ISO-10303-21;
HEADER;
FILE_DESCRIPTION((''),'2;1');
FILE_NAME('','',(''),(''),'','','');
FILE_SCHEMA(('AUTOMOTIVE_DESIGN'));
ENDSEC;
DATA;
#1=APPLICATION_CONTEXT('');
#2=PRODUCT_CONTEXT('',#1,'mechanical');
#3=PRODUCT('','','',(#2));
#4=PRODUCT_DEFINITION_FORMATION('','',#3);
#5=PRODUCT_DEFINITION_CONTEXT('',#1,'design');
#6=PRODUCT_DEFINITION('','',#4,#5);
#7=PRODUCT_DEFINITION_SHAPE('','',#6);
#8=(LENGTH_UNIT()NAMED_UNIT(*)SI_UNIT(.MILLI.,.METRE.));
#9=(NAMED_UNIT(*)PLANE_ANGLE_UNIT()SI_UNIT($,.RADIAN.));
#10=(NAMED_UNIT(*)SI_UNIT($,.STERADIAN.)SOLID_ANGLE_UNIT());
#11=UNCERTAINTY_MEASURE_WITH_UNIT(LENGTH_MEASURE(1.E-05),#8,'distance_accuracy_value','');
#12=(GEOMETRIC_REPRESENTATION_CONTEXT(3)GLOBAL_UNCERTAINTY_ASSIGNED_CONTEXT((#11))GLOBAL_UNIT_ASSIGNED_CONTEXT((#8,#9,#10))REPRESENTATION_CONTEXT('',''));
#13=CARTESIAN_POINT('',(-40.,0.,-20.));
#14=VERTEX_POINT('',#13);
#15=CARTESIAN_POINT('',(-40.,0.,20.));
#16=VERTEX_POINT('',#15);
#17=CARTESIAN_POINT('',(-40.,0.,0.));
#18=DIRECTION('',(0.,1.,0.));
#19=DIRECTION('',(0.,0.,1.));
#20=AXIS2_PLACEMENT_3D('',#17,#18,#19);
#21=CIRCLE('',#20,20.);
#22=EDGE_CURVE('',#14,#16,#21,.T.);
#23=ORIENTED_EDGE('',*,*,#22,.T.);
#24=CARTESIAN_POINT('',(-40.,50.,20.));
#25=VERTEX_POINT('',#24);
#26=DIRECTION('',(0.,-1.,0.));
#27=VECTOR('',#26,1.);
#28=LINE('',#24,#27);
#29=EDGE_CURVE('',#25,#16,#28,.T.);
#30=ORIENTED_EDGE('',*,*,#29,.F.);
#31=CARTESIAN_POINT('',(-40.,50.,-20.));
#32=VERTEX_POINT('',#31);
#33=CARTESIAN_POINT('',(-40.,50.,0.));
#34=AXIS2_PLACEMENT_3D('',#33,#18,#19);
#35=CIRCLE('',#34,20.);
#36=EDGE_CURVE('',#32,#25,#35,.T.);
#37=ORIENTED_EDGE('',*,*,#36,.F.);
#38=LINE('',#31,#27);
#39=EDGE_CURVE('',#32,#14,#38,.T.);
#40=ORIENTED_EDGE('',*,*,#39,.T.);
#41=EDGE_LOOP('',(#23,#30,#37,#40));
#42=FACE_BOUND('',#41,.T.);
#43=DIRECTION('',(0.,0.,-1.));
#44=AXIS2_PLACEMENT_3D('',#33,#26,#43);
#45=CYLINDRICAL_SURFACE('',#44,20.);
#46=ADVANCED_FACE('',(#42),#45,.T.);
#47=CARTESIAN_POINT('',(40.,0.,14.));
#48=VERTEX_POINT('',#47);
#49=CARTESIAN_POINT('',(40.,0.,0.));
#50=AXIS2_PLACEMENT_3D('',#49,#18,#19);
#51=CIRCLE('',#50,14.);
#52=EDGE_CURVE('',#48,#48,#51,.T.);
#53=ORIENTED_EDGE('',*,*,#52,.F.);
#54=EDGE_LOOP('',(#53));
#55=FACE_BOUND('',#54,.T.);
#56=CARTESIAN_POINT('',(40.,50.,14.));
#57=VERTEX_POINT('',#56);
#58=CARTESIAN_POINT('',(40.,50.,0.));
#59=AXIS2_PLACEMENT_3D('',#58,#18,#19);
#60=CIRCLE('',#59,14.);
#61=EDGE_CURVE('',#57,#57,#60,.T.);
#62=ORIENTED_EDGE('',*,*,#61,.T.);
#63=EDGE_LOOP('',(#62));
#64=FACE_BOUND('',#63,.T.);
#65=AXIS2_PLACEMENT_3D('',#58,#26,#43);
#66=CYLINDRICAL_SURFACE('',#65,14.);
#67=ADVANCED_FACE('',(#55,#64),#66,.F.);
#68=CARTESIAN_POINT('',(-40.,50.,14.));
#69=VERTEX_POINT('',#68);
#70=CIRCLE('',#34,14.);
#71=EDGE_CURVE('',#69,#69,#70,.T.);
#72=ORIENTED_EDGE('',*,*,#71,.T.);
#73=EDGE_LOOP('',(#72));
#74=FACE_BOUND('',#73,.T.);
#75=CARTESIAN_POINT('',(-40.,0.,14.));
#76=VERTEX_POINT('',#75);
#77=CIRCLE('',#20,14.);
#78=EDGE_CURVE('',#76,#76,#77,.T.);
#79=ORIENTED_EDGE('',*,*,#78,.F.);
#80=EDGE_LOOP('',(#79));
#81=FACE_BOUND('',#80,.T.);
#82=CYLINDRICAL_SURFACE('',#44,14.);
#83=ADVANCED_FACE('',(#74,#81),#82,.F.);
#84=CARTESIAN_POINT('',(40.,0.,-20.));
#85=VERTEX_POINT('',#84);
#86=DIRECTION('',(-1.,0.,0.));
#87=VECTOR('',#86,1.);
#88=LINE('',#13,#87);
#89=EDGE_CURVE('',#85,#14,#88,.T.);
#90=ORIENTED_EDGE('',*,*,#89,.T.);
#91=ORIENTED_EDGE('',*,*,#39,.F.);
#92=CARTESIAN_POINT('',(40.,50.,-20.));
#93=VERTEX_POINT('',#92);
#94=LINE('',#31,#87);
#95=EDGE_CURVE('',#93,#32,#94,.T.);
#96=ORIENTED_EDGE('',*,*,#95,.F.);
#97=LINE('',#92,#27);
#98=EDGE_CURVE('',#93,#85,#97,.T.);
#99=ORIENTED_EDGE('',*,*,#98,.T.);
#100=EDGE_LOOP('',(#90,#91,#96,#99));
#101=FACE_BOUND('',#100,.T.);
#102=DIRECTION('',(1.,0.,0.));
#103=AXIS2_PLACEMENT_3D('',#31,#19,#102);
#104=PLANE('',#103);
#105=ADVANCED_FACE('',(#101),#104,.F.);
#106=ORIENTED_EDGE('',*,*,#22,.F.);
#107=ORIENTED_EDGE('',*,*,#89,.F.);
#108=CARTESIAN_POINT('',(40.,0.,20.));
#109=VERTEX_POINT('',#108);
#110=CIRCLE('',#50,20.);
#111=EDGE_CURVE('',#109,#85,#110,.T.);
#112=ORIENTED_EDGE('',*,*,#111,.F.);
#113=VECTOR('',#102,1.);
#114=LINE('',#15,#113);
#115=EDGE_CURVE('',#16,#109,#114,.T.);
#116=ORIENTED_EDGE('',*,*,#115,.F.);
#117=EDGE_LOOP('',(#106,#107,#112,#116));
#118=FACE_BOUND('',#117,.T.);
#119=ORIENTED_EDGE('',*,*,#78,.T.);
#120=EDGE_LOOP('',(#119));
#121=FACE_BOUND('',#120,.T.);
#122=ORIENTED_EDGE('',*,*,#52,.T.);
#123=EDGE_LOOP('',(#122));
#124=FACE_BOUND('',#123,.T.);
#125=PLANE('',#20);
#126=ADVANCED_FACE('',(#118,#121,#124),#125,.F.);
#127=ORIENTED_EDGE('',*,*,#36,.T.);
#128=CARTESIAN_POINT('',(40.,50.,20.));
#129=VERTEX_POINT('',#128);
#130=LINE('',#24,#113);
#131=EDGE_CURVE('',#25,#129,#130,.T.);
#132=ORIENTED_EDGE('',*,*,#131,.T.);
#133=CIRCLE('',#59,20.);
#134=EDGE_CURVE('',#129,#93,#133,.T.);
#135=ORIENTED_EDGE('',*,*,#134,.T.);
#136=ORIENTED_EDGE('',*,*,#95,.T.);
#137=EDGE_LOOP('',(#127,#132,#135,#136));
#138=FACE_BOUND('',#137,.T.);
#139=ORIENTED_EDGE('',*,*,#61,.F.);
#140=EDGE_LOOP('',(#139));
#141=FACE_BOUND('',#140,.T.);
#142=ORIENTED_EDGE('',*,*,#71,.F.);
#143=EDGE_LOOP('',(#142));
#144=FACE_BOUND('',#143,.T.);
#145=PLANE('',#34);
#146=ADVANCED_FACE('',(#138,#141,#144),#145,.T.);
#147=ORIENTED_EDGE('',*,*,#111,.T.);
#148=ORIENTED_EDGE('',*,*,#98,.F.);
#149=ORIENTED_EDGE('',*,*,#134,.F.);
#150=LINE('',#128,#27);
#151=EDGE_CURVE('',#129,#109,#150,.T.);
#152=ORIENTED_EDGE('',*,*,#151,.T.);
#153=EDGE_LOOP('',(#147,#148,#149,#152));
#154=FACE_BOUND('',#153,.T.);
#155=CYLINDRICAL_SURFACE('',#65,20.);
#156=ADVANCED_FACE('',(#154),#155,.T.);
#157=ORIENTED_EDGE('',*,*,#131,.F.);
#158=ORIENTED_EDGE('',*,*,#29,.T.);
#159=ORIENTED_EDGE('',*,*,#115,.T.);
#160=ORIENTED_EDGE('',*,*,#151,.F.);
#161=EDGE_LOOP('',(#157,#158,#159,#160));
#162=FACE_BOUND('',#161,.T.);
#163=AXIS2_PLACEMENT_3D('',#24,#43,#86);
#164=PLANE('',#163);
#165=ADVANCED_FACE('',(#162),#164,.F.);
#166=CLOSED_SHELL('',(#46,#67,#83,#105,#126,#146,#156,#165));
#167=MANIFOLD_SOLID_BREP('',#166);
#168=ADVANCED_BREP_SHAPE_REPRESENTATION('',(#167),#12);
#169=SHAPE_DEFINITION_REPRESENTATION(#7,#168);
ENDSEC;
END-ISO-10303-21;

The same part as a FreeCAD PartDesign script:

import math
import FreeCAD as App
import Part
import Sketcher

V = App.Vector

doc = App.newDocument("Part")
params = doc.addObject("Spreadsheet::Sheet", "Params")
for row, (alias, value) in enumerate([
    ("sketch1_diameter", "28 mm"),
    ("sketch1_radius", "20 mm"),
    ("sketch1_width", "80 mm"),
    ("pad1_length", "50 mm"),
], start=1):
    params.set(f"A{row}", alias)
    params.set(f"B{row}", "=" + value)
    params.setAlias(f"B{row}", alias)

body = doc.addObject("PartDesign::Body", "Body")

# Sketch on XZ plane
sketch1 = body.newObject("Sketcher::SketchObject", "Sketch")
sketch1.AttachmentSupport = (doc.getObject("XZ_Plane"), [""])
sketch1.MapMode = "FlatFace"
sketch1.addGeometry(Part.LineSegment(V(40, -20, 0), V(-40, -20, 0)), False)
sketch1.addGeometry(Part.ArcOfCircle(Part.Circle(V(-40, 0, 0), V(0, 0, 1), 20), math.radians(90), math.radians(270)), False)
sketch1.addGeometry(Part.LineSegment(V(-40, 20, 0), V(40, 20, 0)), False)
sketch1.addGeometry(Part.ArcOfCircle(Part.Circle(V(40, 0, 0), V(0, 0, 1), 20), math.radians(-90), math.radians(90)), False)
sketch1.addGeometry(Part.Circle(V(40, 0, 0), V(0, 0, 1), 14), False)
sketch1.addGeometry(Part.Circle(V(-40, 0, 0), V(0, 0, 1), 14), False)
sketch1.addConstraint(Sketcher.Constraint("Tangent", 0, 2, 1, 2))
sketch1.addConstraint(Sketcher.Constraint("Tangent", 1, 1, 2, 1))
sketch1.addConstraint(Sketcher.Constraint("Tangent", 2, 2, 3, 2))
sketch1.addConstraint(Sketcher.Constraint("Tangent", 3, 1, 0, 1))
sketch1.addConstraint(Sketcher.Constraint("Horizontal", 0))
sketch1.addConstraint(Sketcher.Constraint("Horizontal", 2))
sketch1.addConstraint(Sketcher.Constraint("Coincident", 4, 3, 3, 3))
sketch1.addConstraint(Sketcher.Constraint("Coincident", 5, 3, 1, 3))
sketch1.addConstraint(Sketcher.Constraint("Equal", 4, 5))
sketch1.addConstraint(Sketcher.Constraint("Symmetric", 1, 3, 3, 3, -1, 1))
sketch1.addConstraint(Sketcher.Constraint("Diameter", 4, 28.0))
sketch1.addConstraint(Sketcher.Constraint("Radius", 1, 20.0))
sketch1.addConstraint(Sketcher.Constraint("DistanceX", 0, 2, 0, 1, 80.0))
sketch1.setExpression("Constraints[10]", "Params.sketch1_diameter")
sketch1.setExpression("Constraints[11]", "Params.sketch1_radius")
sketch1.setExpression("Constraints[12]", "Params.sketch1_width")
pad1 = body.newObject("PartDesign::Pad", "Pad")
pad1.Profile = sketch1
pad1.setExpression("Length", "Params.pad1_length")
pad1.Reversed = True

doc.recompute()
